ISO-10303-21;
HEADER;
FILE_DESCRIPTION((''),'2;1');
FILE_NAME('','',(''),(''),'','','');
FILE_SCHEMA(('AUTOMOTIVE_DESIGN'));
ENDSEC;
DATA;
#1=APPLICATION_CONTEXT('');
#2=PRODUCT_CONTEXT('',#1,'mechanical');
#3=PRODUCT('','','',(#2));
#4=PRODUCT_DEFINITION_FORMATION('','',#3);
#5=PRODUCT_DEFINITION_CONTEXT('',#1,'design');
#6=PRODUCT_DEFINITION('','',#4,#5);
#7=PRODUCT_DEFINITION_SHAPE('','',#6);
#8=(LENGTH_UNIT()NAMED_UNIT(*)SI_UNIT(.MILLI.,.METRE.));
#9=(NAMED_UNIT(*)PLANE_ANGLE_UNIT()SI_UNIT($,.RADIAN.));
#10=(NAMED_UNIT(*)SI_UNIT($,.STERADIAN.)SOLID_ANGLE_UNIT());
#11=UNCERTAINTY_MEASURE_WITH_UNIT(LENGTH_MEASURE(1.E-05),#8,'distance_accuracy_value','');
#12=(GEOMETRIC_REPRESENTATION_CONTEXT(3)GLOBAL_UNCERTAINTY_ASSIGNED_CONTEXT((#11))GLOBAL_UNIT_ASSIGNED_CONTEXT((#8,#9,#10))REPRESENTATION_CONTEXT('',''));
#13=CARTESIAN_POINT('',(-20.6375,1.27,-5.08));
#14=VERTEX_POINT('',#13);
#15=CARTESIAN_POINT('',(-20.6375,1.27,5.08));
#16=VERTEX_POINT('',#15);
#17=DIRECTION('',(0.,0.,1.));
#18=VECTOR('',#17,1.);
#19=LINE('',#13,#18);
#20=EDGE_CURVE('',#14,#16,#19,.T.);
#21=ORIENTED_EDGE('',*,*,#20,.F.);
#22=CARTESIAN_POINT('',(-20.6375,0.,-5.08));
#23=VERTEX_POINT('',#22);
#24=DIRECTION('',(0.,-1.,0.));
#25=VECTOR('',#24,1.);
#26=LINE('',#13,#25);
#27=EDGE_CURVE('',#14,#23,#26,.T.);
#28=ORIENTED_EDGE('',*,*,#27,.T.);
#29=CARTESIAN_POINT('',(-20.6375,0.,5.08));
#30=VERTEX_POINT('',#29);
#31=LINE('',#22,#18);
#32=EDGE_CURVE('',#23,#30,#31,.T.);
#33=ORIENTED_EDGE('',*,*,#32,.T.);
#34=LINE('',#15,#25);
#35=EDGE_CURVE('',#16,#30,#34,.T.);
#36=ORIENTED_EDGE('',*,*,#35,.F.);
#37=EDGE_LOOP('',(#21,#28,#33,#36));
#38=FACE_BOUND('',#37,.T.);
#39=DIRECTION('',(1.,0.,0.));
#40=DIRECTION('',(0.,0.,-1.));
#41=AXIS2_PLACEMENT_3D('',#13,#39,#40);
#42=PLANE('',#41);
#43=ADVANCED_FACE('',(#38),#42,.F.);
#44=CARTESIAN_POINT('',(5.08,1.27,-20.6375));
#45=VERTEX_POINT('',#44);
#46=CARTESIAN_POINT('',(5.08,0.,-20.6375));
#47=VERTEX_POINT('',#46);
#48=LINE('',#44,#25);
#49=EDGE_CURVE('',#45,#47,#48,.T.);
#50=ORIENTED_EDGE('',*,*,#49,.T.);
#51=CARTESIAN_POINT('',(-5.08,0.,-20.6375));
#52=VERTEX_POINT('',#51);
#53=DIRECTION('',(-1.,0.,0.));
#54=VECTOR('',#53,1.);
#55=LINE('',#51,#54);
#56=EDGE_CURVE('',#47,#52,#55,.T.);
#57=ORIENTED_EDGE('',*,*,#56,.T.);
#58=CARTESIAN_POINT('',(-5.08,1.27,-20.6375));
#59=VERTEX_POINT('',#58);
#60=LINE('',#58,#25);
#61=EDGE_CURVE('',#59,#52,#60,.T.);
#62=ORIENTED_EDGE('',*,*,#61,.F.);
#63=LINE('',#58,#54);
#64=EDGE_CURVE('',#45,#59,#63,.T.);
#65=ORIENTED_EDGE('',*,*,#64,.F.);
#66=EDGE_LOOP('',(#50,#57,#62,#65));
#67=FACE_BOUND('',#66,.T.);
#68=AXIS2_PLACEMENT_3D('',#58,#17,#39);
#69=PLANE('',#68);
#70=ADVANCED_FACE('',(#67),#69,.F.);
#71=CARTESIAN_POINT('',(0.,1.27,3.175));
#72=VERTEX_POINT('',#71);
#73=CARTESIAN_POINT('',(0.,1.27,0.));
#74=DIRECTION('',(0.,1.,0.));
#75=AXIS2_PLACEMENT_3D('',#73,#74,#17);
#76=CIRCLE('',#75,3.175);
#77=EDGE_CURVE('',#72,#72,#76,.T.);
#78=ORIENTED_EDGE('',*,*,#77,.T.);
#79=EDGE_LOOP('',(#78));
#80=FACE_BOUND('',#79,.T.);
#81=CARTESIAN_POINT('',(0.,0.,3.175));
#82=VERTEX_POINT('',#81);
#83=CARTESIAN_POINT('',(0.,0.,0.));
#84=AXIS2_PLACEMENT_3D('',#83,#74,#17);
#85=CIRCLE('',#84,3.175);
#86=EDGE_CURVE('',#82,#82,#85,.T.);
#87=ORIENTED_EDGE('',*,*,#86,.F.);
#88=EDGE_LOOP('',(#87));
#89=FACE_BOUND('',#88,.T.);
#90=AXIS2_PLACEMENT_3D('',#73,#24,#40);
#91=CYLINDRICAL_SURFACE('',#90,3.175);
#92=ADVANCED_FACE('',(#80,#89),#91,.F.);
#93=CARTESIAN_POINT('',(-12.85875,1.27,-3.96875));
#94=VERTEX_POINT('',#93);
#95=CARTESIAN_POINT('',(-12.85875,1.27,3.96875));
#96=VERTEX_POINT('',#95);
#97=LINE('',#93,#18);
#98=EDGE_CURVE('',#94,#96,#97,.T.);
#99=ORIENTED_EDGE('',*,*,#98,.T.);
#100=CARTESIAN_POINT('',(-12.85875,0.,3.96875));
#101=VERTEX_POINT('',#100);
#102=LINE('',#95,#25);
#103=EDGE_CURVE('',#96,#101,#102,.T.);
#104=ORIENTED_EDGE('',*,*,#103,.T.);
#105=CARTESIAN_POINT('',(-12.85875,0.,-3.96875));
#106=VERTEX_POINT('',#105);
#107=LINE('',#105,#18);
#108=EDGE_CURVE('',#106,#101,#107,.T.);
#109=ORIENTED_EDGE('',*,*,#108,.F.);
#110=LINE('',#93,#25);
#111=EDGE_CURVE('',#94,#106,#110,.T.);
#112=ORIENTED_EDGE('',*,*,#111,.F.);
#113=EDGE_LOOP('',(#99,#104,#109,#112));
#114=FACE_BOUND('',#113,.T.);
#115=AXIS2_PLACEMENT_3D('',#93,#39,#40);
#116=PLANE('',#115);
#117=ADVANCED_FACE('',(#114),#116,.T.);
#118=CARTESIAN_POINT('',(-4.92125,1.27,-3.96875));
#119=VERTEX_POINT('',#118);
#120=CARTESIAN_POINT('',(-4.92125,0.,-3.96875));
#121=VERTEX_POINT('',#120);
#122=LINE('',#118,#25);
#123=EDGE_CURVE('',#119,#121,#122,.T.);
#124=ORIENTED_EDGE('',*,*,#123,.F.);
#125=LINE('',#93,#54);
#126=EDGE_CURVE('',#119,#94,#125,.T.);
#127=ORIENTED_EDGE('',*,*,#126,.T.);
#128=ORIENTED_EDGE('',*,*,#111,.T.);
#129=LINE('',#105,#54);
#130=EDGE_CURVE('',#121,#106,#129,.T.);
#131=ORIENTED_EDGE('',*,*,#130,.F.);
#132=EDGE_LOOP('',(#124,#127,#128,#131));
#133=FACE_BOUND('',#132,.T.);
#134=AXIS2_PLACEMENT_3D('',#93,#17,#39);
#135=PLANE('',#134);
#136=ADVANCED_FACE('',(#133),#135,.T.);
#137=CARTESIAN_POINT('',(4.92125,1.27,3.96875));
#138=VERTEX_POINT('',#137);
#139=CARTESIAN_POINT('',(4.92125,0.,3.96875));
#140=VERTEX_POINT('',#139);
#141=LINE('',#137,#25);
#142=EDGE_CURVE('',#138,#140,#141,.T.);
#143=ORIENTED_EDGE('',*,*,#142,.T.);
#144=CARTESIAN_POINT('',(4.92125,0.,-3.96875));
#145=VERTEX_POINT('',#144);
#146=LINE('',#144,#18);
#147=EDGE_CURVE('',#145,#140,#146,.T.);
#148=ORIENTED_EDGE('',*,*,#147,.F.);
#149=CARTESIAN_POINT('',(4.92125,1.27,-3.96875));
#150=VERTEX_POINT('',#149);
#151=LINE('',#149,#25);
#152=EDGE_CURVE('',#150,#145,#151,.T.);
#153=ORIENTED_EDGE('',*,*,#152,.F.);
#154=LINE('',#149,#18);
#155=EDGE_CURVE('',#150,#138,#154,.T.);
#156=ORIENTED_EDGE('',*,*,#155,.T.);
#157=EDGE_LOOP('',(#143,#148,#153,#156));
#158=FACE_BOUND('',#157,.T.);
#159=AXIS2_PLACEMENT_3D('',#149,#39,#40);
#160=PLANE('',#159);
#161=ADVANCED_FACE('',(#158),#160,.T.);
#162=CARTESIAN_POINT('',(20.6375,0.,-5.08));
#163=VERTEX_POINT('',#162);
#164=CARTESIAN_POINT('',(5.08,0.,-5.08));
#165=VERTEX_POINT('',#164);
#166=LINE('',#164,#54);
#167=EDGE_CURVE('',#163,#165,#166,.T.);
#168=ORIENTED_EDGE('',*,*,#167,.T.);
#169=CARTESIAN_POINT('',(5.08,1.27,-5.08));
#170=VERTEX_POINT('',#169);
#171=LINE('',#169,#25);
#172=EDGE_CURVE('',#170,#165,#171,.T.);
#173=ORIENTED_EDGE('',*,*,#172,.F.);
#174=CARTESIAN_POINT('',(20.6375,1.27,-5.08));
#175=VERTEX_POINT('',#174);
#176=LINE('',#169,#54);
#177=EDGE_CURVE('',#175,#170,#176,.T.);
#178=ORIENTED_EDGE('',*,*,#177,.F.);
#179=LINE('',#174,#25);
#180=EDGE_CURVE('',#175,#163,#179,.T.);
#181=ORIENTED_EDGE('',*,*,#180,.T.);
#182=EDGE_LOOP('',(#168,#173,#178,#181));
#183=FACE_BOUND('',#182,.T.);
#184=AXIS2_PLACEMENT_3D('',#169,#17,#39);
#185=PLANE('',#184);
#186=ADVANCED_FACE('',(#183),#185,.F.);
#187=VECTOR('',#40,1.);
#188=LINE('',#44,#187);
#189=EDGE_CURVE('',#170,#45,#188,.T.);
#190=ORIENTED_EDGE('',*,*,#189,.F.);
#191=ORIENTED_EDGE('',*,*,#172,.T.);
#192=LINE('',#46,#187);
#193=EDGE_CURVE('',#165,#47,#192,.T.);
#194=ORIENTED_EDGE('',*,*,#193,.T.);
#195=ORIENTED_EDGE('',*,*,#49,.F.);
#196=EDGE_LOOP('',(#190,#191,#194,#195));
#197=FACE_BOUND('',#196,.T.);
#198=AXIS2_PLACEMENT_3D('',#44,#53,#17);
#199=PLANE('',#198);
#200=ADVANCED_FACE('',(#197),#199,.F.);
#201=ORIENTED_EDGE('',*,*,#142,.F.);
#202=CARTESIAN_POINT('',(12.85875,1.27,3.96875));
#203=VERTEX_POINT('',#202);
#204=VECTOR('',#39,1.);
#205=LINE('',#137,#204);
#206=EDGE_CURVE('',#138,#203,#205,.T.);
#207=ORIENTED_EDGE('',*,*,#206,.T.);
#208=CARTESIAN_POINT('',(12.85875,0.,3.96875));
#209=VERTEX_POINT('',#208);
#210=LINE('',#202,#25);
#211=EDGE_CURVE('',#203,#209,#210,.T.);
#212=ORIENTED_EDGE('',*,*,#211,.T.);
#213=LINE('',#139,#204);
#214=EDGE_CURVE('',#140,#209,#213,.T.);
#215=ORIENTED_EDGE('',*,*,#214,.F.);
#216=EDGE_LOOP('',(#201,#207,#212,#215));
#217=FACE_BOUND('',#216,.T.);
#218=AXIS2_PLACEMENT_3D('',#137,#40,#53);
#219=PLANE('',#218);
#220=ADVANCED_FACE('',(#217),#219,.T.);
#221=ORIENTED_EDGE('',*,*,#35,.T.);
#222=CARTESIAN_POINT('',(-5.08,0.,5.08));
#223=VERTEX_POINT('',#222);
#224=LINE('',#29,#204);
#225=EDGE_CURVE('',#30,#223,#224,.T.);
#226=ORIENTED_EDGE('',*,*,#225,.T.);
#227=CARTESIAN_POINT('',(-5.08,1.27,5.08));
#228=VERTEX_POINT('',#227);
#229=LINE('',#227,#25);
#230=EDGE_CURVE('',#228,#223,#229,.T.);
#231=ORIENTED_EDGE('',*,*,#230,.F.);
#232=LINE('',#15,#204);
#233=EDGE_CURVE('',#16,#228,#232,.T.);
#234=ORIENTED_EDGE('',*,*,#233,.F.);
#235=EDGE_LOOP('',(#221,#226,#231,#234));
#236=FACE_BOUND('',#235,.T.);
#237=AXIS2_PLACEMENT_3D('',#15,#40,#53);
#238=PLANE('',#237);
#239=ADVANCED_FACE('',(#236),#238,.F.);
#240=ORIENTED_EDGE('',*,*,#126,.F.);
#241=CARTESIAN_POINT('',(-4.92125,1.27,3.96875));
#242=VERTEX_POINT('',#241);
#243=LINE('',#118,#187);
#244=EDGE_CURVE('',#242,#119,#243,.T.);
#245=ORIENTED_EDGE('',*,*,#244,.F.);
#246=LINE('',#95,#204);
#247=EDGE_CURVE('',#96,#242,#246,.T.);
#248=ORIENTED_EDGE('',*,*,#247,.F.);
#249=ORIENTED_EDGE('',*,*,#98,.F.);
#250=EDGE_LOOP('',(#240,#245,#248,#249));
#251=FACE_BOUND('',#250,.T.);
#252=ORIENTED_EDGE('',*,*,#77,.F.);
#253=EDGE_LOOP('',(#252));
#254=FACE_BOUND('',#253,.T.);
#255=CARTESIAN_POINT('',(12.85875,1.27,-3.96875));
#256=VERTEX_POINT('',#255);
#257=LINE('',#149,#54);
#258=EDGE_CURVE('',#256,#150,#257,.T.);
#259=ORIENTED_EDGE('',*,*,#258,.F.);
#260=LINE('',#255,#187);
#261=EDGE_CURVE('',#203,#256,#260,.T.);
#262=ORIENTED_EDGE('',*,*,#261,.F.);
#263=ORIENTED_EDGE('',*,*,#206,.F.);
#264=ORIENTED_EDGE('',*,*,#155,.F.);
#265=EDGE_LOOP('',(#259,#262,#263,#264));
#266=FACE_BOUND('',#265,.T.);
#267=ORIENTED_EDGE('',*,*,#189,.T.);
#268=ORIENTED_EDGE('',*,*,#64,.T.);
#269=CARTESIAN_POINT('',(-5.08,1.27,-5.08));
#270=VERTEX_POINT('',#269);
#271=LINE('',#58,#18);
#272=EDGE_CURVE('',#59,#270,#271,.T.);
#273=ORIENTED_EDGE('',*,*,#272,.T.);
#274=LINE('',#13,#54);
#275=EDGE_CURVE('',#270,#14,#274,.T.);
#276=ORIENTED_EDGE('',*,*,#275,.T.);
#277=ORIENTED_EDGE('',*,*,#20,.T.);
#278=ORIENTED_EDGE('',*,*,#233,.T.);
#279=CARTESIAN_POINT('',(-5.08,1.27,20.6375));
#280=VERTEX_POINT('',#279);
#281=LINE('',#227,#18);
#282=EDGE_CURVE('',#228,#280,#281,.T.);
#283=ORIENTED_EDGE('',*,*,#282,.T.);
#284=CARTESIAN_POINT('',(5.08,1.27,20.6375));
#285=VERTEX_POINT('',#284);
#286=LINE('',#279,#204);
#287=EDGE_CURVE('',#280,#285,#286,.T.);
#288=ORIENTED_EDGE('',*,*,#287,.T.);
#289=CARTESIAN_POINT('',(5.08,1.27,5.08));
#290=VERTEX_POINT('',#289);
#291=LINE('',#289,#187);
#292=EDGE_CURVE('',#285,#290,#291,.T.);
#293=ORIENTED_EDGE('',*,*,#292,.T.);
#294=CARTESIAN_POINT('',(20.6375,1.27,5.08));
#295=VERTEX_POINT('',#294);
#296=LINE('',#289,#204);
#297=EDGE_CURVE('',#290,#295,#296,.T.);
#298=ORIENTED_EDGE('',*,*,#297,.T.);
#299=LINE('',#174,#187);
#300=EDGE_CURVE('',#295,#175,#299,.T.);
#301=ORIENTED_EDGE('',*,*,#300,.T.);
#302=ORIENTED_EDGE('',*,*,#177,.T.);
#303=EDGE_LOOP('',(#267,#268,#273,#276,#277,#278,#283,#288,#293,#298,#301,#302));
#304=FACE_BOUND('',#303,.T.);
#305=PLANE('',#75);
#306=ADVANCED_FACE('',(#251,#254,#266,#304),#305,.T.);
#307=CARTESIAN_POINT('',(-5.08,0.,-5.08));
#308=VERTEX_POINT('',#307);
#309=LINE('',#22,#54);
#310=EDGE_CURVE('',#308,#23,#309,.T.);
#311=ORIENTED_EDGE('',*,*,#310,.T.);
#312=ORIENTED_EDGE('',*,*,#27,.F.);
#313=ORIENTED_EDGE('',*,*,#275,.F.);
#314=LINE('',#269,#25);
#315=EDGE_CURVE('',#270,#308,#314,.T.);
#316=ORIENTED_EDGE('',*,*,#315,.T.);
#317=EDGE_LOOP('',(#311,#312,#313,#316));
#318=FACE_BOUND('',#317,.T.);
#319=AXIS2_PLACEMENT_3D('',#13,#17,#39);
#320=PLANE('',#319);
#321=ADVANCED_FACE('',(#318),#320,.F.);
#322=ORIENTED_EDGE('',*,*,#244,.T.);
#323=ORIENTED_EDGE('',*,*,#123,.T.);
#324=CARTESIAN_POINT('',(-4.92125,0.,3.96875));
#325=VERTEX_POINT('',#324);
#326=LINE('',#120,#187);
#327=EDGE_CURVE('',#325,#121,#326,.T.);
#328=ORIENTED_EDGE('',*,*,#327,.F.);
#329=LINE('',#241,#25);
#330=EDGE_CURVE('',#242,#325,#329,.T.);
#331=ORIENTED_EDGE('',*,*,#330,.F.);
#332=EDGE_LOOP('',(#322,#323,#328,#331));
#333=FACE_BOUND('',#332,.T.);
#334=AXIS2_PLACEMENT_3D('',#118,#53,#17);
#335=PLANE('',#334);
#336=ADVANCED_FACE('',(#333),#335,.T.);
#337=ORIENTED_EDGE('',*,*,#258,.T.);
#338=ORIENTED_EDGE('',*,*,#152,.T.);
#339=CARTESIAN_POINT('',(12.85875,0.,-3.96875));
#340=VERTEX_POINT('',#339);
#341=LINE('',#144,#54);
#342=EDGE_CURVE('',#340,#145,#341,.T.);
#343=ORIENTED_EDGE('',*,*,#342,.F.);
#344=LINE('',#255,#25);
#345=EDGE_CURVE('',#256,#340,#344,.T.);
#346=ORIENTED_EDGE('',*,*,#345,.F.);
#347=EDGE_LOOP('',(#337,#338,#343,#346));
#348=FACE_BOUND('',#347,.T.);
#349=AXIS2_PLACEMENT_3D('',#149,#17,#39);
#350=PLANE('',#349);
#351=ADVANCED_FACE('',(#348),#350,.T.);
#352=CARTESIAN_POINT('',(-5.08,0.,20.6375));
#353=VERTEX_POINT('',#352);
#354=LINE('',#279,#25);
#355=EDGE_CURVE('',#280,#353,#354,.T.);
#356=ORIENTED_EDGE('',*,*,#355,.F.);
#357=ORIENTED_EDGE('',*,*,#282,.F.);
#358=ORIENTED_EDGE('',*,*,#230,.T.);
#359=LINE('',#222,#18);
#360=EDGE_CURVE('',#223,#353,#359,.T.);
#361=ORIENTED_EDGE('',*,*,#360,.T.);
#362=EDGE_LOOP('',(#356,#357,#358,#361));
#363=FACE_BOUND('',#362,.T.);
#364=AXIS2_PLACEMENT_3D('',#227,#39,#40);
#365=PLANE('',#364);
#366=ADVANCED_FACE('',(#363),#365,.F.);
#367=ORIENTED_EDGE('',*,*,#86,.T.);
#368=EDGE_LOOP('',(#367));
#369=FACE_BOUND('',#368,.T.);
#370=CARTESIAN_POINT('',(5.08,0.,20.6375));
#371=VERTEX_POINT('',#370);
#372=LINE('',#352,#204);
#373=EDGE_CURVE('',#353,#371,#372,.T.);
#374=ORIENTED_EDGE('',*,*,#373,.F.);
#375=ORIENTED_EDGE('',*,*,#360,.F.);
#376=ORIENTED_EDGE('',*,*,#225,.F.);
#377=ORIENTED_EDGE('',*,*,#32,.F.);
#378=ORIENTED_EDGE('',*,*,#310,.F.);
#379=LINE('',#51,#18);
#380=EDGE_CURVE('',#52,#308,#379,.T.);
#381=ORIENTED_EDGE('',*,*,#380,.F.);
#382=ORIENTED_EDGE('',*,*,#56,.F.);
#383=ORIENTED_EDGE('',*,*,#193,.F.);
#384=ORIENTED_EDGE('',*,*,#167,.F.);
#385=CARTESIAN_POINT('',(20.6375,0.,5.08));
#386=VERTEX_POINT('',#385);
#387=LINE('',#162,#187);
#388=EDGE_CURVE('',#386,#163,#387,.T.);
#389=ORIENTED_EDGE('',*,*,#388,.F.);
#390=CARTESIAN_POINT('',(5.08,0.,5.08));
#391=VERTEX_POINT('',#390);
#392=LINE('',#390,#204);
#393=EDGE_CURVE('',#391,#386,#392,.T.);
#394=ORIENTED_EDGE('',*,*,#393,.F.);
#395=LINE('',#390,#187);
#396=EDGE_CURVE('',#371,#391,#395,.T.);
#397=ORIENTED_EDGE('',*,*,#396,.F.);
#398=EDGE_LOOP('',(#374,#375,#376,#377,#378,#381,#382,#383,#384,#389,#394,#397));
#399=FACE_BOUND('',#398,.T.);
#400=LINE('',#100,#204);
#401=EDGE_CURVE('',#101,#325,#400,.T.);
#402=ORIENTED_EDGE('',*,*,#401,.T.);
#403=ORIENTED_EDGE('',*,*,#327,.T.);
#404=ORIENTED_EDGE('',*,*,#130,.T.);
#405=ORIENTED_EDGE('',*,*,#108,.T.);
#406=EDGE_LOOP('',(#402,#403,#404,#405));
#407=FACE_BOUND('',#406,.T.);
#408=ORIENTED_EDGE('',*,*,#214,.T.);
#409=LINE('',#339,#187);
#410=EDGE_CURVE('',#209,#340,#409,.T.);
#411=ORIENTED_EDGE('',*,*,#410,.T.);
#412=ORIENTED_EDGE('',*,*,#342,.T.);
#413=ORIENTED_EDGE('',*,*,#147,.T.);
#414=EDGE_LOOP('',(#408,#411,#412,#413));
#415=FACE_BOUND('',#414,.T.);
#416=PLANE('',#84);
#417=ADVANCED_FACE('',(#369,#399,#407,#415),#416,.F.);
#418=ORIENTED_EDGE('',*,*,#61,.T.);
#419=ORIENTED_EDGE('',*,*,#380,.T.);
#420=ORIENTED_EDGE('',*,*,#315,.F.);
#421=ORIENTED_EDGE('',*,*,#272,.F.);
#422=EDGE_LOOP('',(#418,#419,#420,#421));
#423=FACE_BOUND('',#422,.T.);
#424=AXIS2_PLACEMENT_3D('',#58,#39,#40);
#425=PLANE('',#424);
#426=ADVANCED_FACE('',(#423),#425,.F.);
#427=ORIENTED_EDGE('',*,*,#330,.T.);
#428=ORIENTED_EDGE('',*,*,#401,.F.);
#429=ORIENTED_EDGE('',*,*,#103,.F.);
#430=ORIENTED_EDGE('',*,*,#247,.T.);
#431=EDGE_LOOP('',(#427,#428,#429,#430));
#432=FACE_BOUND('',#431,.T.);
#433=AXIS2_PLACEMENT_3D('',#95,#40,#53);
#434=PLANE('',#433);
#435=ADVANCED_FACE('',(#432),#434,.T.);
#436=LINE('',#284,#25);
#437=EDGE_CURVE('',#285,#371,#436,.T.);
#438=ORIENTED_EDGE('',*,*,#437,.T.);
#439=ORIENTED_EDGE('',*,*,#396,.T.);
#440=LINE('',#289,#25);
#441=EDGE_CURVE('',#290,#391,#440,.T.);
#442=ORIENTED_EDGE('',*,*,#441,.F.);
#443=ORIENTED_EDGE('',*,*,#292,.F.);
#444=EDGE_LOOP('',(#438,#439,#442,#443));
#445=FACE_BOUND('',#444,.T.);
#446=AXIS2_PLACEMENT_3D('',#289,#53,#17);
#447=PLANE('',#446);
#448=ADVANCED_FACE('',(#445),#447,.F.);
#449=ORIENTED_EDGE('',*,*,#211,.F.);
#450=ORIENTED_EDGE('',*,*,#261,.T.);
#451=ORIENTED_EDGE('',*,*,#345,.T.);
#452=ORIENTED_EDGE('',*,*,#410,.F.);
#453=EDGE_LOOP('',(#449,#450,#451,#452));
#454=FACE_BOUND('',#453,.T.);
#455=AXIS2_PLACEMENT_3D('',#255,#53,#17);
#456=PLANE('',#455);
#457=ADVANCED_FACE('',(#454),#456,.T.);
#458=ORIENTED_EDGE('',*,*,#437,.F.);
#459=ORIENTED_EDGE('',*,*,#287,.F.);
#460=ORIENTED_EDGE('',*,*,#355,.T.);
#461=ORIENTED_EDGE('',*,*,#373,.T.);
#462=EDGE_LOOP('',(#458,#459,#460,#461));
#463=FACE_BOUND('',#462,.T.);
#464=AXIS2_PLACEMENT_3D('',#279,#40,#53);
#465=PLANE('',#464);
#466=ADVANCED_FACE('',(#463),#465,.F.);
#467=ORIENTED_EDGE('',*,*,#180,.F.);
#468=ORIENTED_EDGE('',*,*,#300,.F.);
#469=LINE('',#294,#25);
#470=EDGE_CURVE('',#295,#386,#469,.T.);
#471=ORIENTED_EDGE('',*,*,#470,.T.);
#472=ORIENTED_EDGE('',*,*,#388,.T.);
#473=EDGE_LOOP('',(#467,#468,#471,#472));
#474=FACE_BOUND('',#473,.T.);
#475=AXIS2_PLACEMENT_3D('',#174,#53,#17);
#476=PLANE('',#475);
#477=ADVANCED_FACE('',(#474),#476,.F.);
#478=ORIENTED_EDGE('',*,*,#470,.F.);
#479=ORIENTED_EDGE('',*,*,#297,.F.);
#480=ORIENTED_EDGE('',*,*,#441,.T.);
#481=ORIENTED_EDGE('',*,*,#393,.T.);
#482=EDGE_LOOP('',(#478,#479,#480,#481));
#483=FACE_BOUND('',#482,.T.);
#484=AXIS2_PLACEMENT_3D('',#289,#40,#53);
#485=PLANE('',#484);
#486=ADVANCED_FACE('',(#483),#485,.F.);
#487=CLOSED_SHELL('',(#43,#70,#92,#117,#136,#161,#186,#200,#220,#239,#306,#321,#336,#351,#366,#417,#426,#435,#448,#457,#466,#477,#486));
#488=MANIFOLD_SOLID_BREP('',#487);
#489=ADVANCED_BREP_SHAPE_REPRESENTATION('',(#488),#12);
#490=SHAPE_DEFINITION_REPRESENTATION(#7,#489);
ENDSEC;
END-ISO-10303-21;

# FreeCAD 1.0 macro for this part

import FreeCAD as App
import Part
import Sketcher

V = App.Vector
Q = App.Units.Quantity


def add_polygon(sketch, points):
    """Adds a closed chain of lines whose ends are joined by coincident constraints."""
    first, n = sketch.GeometryCount, len(points)
    for a, b in zip(points, points[1:] + points[:1]):
        sketch.addGeometry(Part.LineSegment(App.Vector(*a, 0), App.Vector(*b, 0)), False)
    for i in range(n):
        sketch.addConstraint(Sketcher.Constraint("Coincident", first + i, 2, first + (i + 1) % n, 1))

doc = App.newDocument("Part")
body = doc.addObject("PartDesign::Body", "Body")

# Sketch on XZ plane
sketch1 = doc.addObject("Sketcher::SketchObject", "Sketch")
body.addObject(sketch1)
sketch1.AttachmentSupport = (doc.XZ_Plane, [""])
sketch1.MapMode = "FlatFace"
add_polygon(sketch1, [(-5.1, -5.1), (-20.6, -5.1), (-20.6, 5.1), (-5.1, 5.1), (-5.1, 20.6), (5.1, 20.6), (5.1, 5.1), (20.6, 5.1), (20.6, -5.1), (5.1, -5.1), (5.1, -20.6), (-5.1, -20.6)])  # lines 0-11
add_polygon(sketch1, [(4.9, 4), (4.9, -4), (12.9, -4), (12.9, 4)])  # lines 12-15
sketch1.addGeometry(Part.Circle(V(0, 0, 0), V(0, 0, 1), 3.2), False)  # 16
add_polygon(sketch1, [(-12.9, 4), (-12.9, -4), (-4.9, -4), (-4.9, 4)])  # lines 17-20
sketch1.addConstraint([
    Sketcher.Constraint("Horizontal", 0),
    Sketcher.Constraint("Vertical", 1),
    Sketcher.Constraint("Horizontal", 2),
    Sketcher.Constraint("Vertical", 3),
    Sketcher.Constraint("Horizontal", 4),
    Sketcher.Constraint("Vertical", 5),
    Sketcher.Constraint("Horizontal", 6),
    Sketcher.Constraint("Vertical", 7),
    Sketcher.Constraint("Horizontal", 8),
    Sketcher.Constraint("Vertical", 9),
    Sketcher.Constraint("Horizontal", 10),
    Sketcher.Constraint("Vertical", 11),
    Sketcher.Constraint("Vertical", 12),
    Sketcher.Constraint("Horizontal", 13),
    Sketcher.Constraint("Vertical", 14),
    Sketcher.Constraint("Horizontal", 15),
    Sketcher.Constraint("Vertical", 17),
    Sketcher.Constraint("Horizontal", 18),
    Sketcher.Constraint("Vertical", 19),
    Sketcher.Constraint("Horizontal", 20),
    Sketcher.Constraint("Coincident", 16, 3, -1, 1),
    Sketcher.Constraint("Symmetric", 0, 2, 6, 2, -1, 1),
    Sketcher.Constraint("Symmetric", 2, 2, 8, 2, -1, 1),
    Sketcher.Constraint("Symmetric", 4, 2, 10, 2, -1, 1),
    Sketcher.Constraint("Symmetric", 14, 2, 17, 2, -1, 1),
    Sketcher.Constraint("Symmetric", 12, 2, 19, 2, -1, 1),
    Sketcher.Constraint("Symmetric", 2, 2, 5, 2, -2),
    Sketcher.Constraint("Horizontal", 13, 2, 17, 2),
    Sketcher.Constraint("Equal", 10, 1),
    Sketcher.Constraint("Equal", 8, 3),
    Sketcher.Constraint("Equal", 20, 12),
    Sketcher.Constraint("Diameter", 16, Q("0.25 in")),
    Sketcher.Constraint("DistanceX", 4, 1, 4, 2, Q("0.4 in")),
    Sketcher.Constraint("DistanceX", 13, 1, 13, 2, Q("0.3125 in")),
    Sketcher.Constraint("DistanceX", 0, 2, 0, 1, Q("0.6125 in")),
    Sketcher.Constraint("DistanceX", 18, 2, 12, 2, Q("0.3875 in")),
])
pad1 = doc.addObject("PartDesign::Pad", "Pad")
body.addObject(pad1)
pad1.Profile = sketch1
pad1.Length = Q("0.05 in")
pad1.Reversed = True

doc.recompute()
